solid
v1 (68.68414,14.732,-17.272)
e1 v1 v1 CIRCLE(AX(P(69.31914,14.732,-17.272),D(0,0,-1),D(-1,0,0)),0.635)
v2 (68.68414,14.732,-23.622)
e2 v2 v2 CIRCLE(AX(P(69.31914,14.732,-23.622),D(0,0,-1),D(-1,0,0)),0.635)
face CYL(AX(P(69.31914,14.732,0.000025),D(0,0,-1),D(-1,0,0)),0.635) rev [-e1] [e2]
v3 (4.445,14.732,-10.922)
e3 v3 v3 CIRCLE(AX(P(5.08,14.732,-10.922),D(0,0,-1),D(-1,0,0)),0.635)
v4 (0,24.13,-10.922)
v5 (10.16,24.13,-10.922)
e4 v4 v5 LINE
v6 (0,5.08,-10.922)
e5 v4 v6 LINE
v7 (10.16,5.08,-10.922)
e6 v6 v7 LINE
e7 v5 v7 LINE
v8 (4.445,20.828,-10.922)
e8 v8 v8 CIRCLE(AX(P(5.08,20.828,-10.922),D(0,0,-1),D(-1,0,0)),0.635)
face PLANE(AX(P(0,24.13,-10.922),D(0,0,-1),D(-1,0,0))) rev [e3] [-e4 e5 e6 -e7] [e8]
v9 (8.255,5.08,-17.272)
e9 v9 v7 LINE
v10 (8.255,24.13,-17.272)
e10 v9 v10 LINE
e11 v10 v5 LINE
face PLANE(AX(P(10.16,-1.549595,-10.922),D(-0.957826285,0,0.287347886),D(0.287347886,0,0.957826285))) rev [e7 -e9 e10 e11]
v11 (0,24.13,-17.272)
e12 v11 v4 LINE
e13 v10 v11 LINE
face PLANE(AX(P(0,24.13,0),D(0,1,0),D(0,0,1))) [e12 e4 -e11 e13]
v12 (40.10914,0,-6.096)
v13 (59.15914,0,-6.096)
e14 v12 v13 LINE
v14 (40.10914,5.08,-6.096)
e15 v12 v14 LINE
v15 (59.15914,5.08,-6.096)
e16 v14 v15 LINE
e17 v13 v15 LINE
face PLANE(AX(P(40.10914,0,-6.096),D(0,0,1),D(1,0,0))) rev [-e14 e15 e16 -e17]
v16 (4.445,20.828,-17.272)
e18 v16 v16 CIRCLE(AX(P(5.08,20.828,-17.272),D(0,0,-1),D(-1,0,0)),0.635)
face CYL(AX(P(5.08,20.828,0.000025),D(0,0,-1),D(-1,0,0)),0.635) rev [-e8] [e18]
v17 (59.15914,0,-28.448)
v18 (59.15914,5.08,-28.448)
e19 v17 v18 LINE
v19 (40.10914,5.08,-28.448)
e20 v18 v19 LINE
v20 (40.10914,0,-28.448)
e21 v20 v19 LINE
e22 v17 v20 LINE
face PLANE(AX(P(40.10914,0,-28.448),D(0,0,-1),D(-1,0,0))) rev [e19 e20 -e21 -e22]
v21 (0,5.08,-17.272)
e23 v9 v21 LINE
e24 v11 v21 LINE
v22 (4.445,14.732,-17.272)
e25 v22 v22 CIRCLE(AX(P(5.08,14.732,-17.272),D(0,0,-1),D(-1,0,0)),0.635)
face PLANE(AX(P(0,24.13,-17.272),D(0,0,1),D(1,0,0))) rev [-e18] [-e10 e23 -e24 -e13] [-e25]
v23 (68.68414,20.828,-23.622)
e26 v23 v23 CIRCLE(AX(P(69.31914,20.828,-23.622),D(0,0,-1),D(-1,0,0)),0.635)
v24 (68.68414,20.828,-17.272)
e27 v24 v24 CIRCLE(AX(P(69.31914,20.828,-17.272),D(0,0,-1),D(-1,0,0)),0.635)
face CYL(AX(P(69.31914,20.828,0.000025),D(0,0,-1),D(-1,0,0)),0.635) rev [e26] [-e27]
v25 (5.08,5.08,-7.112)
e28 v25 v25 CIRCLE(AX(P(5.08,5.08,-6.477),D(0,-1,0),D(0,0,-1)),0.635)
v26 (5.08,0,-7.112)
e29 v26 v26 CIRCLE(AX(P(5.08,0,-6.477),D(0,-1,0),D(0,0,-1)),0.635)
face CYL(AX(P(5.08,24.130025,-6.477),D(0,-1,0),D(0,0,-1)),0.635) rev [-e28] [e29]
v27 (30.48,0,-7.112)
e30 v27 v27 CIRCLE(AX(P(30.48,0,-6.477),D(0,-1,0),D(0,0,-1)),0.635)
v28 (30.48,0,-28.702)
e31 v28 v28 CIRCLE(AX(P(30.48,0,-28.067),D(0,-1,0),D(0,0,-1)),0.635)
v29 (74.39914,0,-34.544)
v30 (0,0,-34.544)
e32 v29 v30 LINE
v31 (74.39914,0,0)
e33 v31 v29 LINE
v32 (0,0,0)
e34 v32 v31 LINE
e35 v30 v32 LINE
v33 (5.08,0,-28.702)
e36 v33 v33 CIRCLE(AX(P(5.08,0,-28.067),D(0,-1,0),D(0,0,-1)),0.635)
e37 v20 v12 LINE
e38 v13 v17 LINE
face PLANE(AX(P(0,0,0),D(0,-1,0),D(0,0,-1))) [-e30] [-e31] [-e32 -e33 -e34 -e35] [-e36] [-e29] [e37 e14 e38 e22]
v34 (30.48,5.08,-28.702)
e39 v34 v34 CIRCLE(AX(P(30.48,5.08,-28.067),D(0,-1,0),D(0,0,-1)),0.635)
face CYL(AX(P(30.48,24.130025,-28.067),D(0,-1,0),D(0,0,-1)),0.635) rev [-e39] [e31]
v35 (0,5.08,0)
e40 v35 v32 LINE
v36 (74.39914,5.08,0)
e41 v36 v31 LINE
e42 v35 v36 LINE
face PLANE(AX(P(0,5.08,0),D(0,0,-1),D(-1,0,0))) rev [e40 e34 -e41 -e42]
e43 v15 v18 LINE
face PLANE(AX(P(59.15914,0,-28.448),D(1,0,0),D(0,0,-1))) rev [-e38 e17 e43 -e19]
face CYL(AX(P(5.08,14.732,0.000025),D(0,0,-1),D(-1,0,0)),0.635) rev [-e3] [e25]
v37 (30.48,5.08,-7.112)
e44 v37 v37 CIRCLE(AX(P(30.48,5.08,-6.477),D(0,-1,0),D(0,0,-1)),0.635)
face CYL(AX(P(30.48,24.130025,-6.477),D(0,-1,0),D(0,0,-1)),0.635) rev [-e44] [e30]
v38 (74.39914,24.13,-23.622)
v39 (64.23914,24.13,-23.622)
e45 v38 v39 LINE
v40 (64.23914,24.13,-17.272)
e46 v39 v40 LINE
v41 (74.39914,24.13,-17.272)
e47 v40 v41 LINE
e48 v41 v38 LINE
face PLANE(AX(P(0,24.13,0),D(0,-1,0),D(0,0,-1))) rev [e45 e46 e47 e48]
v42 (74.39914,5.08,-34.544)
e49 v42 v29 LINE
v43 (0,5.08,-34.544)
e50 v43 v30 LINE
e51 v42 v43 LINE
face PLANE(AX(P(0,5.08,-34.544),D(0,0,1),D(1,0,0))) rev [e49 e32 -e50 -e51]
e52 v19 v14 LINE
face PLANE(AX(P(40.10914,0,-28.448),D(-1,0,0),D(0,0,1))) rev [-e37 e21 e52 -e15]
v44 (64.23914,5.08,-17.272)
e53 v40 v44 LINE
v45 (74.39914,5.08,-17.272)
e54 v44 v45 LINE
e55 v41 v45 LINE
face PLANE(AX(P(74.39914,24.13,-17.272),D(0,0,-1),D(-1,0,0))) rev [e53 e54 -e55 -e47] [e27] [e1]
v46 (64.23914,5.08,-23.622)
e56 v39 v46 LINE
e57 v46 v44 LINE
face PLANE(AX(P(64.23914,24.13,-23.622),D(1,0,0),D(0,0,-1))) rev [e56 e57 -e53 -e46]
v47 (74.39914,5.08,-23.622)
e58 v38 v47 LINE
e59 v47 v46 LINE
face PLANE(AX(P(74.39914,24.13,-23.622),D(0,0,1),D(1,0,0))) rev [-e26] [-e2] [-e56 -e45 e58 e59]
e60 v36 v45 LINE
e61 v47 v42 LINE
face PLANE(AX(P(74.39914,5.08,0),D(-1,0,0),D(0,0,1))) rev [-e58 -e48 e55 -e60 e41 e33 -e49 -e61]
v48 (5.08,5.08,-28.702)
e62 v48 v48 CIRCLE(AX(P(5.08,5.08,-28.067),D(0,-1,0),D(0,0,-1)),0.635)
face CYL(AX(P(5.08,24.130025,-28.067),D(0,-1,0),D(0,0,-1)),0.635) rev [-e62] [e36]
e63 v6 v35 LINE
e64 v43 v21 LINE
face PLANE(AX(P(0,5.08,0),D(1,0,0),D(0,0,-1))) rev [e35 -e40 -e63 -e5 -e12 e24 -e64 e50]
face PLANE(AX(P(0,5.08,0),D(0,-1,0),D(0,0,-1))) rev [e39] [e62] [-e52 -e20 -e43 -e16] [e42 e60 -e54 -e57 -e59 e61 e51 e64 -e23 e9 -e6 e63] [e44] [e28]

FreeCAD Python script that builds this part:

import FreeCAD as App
import Part
import Sketcher

V = App.Vector
Q = App.Units.Quantity

doc = App.newDocument("Part")
body = doc.addObject("PartDesign::Body", "Body")

# Sketch on XZ plane
sketch1 = doc.addObject("Sketcher::SketchObject", "Sketch")
body.addObject(sketch1)
sketch1.AttachmentSupport = (doc.XZ_Plane, [""])
sketch1.MapMode = "FlatFace"
sketch1.addGeometry(Part.LineSegment(V(0, -35, 0), V(0, 0, 0)), False)
sketch1.addGeometry(Part.LineSegment(V(0, 0, 0), V(74, 0, 0)), False)
sketch1.addGeometry(Part.LineSegment(V(74, 0, 0), V(74, -35, 0)), False)
sketch1.addGeometry(Part.LineSegment(V(74, -35, 0), V(0, -35, 0)), False)
sketch1.addConstraint(Sketcher.Constraint("Coincident", 0, 2, 1, 1))
sketch1.addConstraint(Sketcher.Constraint("Coincident", 1, 2, 2, 1))
sketch1.addConstraint(Sketcher.Constraint("Coincident", 2, 2, 3, 1))
sketch1.addConstraint(Sketcher.Constraint("Coincident", 3, 2, 0, 1))
sketch1.addConstraint(Sketcher.Constraint("Vertical", 0))
sketch1.addConstraint(Sketcher.Constraint("Horizontal", 1))
sketch1.addConstraint(Sketcher.Constraint("Vertical", 2))
sketch1.addConstraint(Sketcher.Constraint("Horizontal", 3))
sketch1.addConstraint(Sketcher.Constraint("Coincident", 0, 2, -1, 1))
sketch1.addConstraint(Sketcher.Constraint("DistanceY", 0, 1, 0, 2, Q("1.36 in")))
sketch1.addConstraint(Sketcher.Constraint("DistanceX", 1, 1, 1, 2, Q("2.9291 in")))
pad1 = doc.addObject("PartDesign::Pad", "Pad")
body.addObject(pad1)
pad1.Profile = sketch1
pad1.Length = Q("0.2 in")
pad1.Reversed = True

# Sketch on XZ plane
sketch2 = doc.addObject("Sketcher::SketchObject", "Sketch001")
body.addObject(sketch2)
sketch2.AttachmentSupport = (doc.XZ_Plane, [""])
sketch2.MapMode = "FlatFace"
sketch2.AttachmentOffset = App.Placement(V(0, 0, -0.2 * 25.4), App.Rotation())
sketch2.addGeometry(Part.LineSegment(V(64, -24, 0), V(64, -17, 0)), False)
sketch2.addGeometry(Part.LineSegment(V(64, -17, 0), V(74, -17, 0)), False)
sketch2.addGeometry(Part.LineSegment(V(74, -17, 0), V(74, -24, 0)), False)
sketch2.addGeometry(Part.LineSegment(V(74, -24, 0), V(64, -24, 0)), False)
sketch2.addGeometry(Part.LineSegment(V(0, -17, 0), V(0, -11, 0)), False)
sketch2.addGeometry(Part.LineSegment(V(0, -11, 0), V(10, -11, 0)), False)
sketch2.addGeometry(Part.LineSegment(V(10, -11, 0), V(10, -17, 0)), False)
sketch2.addGeometry(Part.LineSegment(V(10, -17, 0), V(0, -17, 0)), False)
sketch2.addConstraint(Sketcher.Constraint("Coincident", 0, 2, 1, 1))
sketch2.addConstraint(Sketcher.Constraint("Coincident", 1, 2, 2, 1))
sketch2.addConstraint(Sketcher.Constraint("Coincident", 2, 2, 3, 1))
sketch2.addConstraint(Sketcher.Constraint("Coincident", 3, 2, 0, 1))
sketch2.addConstraint(Sketcher.Constraint("Coincident", 4, 2, 5, 1))
sketch2.addConstraint(Sketcher.Constraint("Coincident", 5, 2, 6, 1))
sketch2.addConstraint(Sketcher.Constraint("Coincident", 6, 2, 7, 1))
sketch2.addConstraint(Sketcher.Constraint("Coincident", 7, 2, 4, 1))
sketch2.addConstraint(Sketcher.Constraint("Vertical", 0))
sketch2.addConstraint(Sketcher.Constraint("Horizontal", 1))
sketch2.addConstraint(Sketcher.Constraint("Vertical", 2))
sketch2.addConstraint(Sketcher.Constraint("Horizontal", 3))
sketch2.addConstraint(Sketcher.Constraint("Vertical", 4))
sketch2.addConstraint(Sketcher.Constraint("Horizontal", 5))
sketch2.addConstraint(Sketcher.Constraint("Vertical", 6))
sketch2.addConstraint(Sketcher.Constraint("Horizontal", 7))
sketch2.addConstraint(Sketcher.Constraint("PointOnObject", 4, 2, -2))
sketch2.addConstraint(Sketcher.Constraint("Horizontal", 1, 2, 6, 2))
sketch2.addConstraint(Sketcher.Constraint("Equal", 3, 5))
sketch2.addConstraint(Sketcher.Constraint("Equal", 2, 4))
sketch2.addConstraint(Sketcher.Constraint("DistanceX", 1, 1, 1, 2, Q("0.4 in")))
sketch2.addConstraint(Sketcher.Constraint("DistanceY", 0, 1, 0, 2, Q("0.25 in")))
sketch2.addConstraint(Sketcher.Constraint("DistanceY", 0, 2, -1, 1, Q("0.68 in")))
sketch2.addConstraint(Sketcher.Constraint("DistanceX", -1, 1, 0, 2, Q("2.5291 in")))
pad2 = doc.addObject("PartDesign::Pad", "Pad001")
body.addObject(pad2)
pad2.Profile = sketch2
pad2.Length = Q("0.75 in")
pad2.Reversed = True

# Sketch on XY plane
sketch3 = doc.addObject("Sketcher::SketchObject", "Sketch002")
body.addObject(sketch3)
sketch3.AttachmentSupport = (doc.XY_Plane, [""])
sketch3.MapMode = "FlatFace"
sketch3.AttachmentOffset = App.Placement(V(0, 0, -0.93 * 25.4), App.Rotation())
sketch3.addGeometry(Part.Circle(V(69.3, 20.8, 0), V(0, 0, 1), 0.6), False)
sketch3.addGeometry(Part.Circle(V(69.3, 14.7, 0), V(0, 0, 1), 0.6), False)
sketch3.addConstraint(Sketcher.Constraint("Equal", 0, 1))
sketch3.addConstraint(Sketcher.Constraint("Vertical", 0, 3, 1, 3))
sketch3.addConstraint(Sketcher.Constraint("Diameter", 0, Q("0.05 in")))
sketch3.addConstraint(Sketcher.Constraint("DistanceY", -1, 1, 0, 3, Q("0.82 in")))
sketch3.addConstraint(Sketcher.Constraint("DistanceY", -1, 1, 1, 3, Q("0.58 in")))
sketch3.addConstraint(Sketcher.Constraint("DistanceX", -1, 1, 0, 3, Q("2.7291 in")))
pocket1 = doc.addObject("PartDesign::Pocket", "Pocket")
body.addObject(pocket1)
pocket1.Profile = sketch3
pocket1.Type = "ThroughAll"
pocket1.Reversed = True

# Sketch on XZ plane
sketch4 = doc.addObject("Sketcher::SketchObject", "Sketch003")
body.addObject(sketch4)
sketch4.AttachmentSupport = (doc.XZ_Plane, [""])
sketch4.MapMode = "FlatFace"
sketch4.AttachmentOffset = App.Placement(V(0, 0, -0.2 * 25.4), App.Rotation())
sketch4.addGeometry(Part.LineSegment(V(40, -28, 0), V(40, -6, 0)), False)
sketch4.addGeometry(Part.LineSegment(V(40, -6, 0), V(59, -6, 0)), False)
sketch4.addGeometry(Part.LineSegment(V(59, -6, 0), V(59, -28, 0)), False)
sketch4.addGeometry(Part.LineSegment(V(59, -28, 0), V(40, -28, 0)), False)
sketch4.addConstraint(Sketcher.Constraint("Coincident", 0, 2, 1, 1))
sketch4.addConstraint(Sketcher.Constraint("Coincident", 1, 2, 2, 1))
sketch4.addConstraint(Sketcher.Constraint("Coincident", 2, 2, 3, 1))
sketch4.addConstraint(Sketcher.Constraint("Coincident", 3, 2, 0, 1))
sketch4.addConstraint(Sketcher.Constraint("Vertical", 0))
sketch4.addConstraint(Sketcher.Constraint("Horizontal", 1))
sketch4.addConstraint(Sketcher.Constraint("Vertical", 2))
sketch4.addConstraint(Sketcher.Constraint("Horizontal", 3))
sketch4.addConstraint(Sketcher.Constraint("DistanceX", 1, 1, 1, 2, Q("0.75 in")))
sketch4.addConstraint(Sketcher.Constraint("DistanceY", 0, 1, 0, 2, Q("0.88 in")))
sketch4.addConstraint(Sketcher.Constraint("DistanceY", 0, 2, -1, 1, Q("0.24 in")))
sketch4.addConstraint(Sketcher.Constraint("DistanceX", -1, 1, 0, 2, Q("1.5791 in")))
pocket2 = doc.addObject("PartDesign::Pocket", "Pocket001")
body.addObject(pocket2)
pocket2.Profile = sketch4
pocket2.Type = "ThroughAll"
pocket2.Reversed = True

# Sketch on XZ plane
sketch5 = doc.addObject("Sketcher::SketchObject", "Sketch004")
body.addObject(sketch5)
sketch5.AttachmentSupport = (doc.XZ_Plane, [""])
sketch5.MapMode = "FlatFace"
sketch5.addGeometry(Part.Circle(V(5.1, -28.1, 0), V(0, 0, 1), 0.6), False)
sketch5.addGeometry(Part.Circle(V(30.5, -28.1, 0), V(0, 0, 1), 0.6), False)
sketch5.addGeometry(Part.Circle(V(30.5, -6.5, 0), V(0, 0, 1), 0.6), False)
sketch5.addGeometry(Part.Circle(V(5.1, -6.5, 0), V(0, 0, 1), 0.6), False)
sketch5.addConstraint(Sketcher.Constraint("Equal", 0, 1))
sketch5.addConstraint(Sketcher.Constraint("Equal", 1, 2))
sketch5.addConstraint(Sketcher.Constraint("Equal", 2, 3))
sketch5.addConstraint(Sketcher.Constraint("Horizontal", 0, 3, 1, 3))
sketch5.addConstraint(Sketcher.Constraint("Horizontal", 2, 3, 3, 3))
sketch5.addConstraint(Sketcher.Constraint("Vertical", 1, 3, 2, 3))
sketch5.addConstraint(Sketcher.Constraint("Vertical", 0, 3, 3, 3))
sketch5.addConstraint(Sketcher.Constraint("Diameter", 0, Q("0.05 in")))
sketch5.addConstraint(Sketcher.Constraint("DistanceX", 0, 3, 1, 3, Q("1 in")))
sketch5.addConstraint(Sketcher.Constraint("DistanceX", -1, 1, 0, 3, Q("0.2 in")))
sketch5.addConstraint(Sketcher.Constraint("DistanceY", 1, 3, 2, 3, Q("0.85 in")))
sketch5.addConstraint(Sketcher.Constraint("DistanceY", 0, 3, -1, 1, Q("1.105 in")))
pocket3 = doc.addObject("PartDesign::Pocket", "Pocket002")
body.addObject(pocket3)
pocket3.Profile = sketch5
pocket3.Type = "ThroughAll"

# Sketch on XY plane
sketch6 = doc.addObject("Sketcher::SketchObject", "Sketch005")
body.addObject(sketch6)
sketch6.AttachmentSupport = (doc.XY_Plane, [""])
sketch6.MapMode = "FlatFace"
sketch6.AttachmentOffset = App.Placement(V(0, 0, -0.68 * 25.4), App.Rotation())
sketch6.addGeometry(Part.Circle(V(5.1, 20.8, 0), V(0, 0, 1), 0.6), False)
sketch6.addGeometry(Part.Circle(V(5.1, 14.7, 0), V(0, 0, 1), 0.6), False)
sketch6.addConstraint(Sketcher.Constraint("Equal", 0, 1))
sketch6.addConstraint(Sketcher.Constraint("Vertical", 0, 3, 1, 3))
sketch6.addConstraint(Sketcher.Constraint("Diameter", 0, Q("0.05 in")))
sketch6.addConstraint(Sketcher.Constraint("DistanceX", -1, 1, 0, 3, Q("0.2 in")))
sketch6.addConstraint(Sketcher.Constraint("DistanceY", -1, 1, 0, 3, Q("0.82 in")))
sketch6.addConstraint(Sketcher.Constraint("DistanceY", -1, 1, 1, 3, Q("0.58 in")))
pocket4 = doc.addObject("PartDesign::Pocket", "Pocket003")
body.addObject(pocket4)
pocket4.Profile = sketch6
pocket4.Type = "ThroughAll"
pocket4.Reversed = True

# Sketch on XZ plane
sketch7 = doc.addObject("Sketcher::SketchObject", "Sketch006")
body.addObject(sketch7)
sketch7.AttachmentSupport = (doc.XZ_Plane, [""])
sketch7.MapMode = "FlatFace"
sketch7.AttachmentOffset = App.Placement(V(0, 0, -0.95 * 25.4), App.Rotation())
sketch7.addGeometry(Part.LineSegment(V(8.3, -17.3, 0), V(10.2, -10.9, 0)), False)
sketch7.addGeometry(Part.LineSegment(V(10.2, -10.9, 0), V(10.2, -17.3, 0)), False)
sketch7.addGeometry(Part.LineSegment(V(10.2, -17.3, 0), V(8.3, -17.3, 0)), False)
sketch7.addConstraint(Sketcher.Constraint("Coincident", 0, 2, 1, 1))
sketch7.addConstraint(Sketcher.Constraint("Coincident", 1, 2, 2, 1))
sketch7.addConstraint(Sketcher.Constraint("Coincident", 2, 2, 0, 1))
sketch7.addConstraint(Sketcher.Constraint("Vertical", 1))
sketch7.addConstraint(Sketcher.Constraint("Horizontal", 2))
sketch7.addConstraint(Sketcher.Constraint("DistanceY", 1, 2, 1, 1, Q("0.25 in")))
sketch7.addConstraint(Sketcher.Constraint("DistanceX", -1, 1, 0, 2, Q("0.4 in")))
sketch7.addConstraint(Sketcher.Constraint("DistanceX", 2, 2, 2, 1, Q("0.075 in")))
sketch7.addConstraint(Sketcher.Constraint("DistanceY", 0, 2, -1, 1, Q("0.43 in")))
pocket5 = doc.addObject("PartDesign::Pocket", "Pocket004")
body.addObject(pocket5)
pocket5.Profile = sketch7
pocket5.Length = Q("0.75 in")
pocket5.Reversed = True

doc.recompute()
